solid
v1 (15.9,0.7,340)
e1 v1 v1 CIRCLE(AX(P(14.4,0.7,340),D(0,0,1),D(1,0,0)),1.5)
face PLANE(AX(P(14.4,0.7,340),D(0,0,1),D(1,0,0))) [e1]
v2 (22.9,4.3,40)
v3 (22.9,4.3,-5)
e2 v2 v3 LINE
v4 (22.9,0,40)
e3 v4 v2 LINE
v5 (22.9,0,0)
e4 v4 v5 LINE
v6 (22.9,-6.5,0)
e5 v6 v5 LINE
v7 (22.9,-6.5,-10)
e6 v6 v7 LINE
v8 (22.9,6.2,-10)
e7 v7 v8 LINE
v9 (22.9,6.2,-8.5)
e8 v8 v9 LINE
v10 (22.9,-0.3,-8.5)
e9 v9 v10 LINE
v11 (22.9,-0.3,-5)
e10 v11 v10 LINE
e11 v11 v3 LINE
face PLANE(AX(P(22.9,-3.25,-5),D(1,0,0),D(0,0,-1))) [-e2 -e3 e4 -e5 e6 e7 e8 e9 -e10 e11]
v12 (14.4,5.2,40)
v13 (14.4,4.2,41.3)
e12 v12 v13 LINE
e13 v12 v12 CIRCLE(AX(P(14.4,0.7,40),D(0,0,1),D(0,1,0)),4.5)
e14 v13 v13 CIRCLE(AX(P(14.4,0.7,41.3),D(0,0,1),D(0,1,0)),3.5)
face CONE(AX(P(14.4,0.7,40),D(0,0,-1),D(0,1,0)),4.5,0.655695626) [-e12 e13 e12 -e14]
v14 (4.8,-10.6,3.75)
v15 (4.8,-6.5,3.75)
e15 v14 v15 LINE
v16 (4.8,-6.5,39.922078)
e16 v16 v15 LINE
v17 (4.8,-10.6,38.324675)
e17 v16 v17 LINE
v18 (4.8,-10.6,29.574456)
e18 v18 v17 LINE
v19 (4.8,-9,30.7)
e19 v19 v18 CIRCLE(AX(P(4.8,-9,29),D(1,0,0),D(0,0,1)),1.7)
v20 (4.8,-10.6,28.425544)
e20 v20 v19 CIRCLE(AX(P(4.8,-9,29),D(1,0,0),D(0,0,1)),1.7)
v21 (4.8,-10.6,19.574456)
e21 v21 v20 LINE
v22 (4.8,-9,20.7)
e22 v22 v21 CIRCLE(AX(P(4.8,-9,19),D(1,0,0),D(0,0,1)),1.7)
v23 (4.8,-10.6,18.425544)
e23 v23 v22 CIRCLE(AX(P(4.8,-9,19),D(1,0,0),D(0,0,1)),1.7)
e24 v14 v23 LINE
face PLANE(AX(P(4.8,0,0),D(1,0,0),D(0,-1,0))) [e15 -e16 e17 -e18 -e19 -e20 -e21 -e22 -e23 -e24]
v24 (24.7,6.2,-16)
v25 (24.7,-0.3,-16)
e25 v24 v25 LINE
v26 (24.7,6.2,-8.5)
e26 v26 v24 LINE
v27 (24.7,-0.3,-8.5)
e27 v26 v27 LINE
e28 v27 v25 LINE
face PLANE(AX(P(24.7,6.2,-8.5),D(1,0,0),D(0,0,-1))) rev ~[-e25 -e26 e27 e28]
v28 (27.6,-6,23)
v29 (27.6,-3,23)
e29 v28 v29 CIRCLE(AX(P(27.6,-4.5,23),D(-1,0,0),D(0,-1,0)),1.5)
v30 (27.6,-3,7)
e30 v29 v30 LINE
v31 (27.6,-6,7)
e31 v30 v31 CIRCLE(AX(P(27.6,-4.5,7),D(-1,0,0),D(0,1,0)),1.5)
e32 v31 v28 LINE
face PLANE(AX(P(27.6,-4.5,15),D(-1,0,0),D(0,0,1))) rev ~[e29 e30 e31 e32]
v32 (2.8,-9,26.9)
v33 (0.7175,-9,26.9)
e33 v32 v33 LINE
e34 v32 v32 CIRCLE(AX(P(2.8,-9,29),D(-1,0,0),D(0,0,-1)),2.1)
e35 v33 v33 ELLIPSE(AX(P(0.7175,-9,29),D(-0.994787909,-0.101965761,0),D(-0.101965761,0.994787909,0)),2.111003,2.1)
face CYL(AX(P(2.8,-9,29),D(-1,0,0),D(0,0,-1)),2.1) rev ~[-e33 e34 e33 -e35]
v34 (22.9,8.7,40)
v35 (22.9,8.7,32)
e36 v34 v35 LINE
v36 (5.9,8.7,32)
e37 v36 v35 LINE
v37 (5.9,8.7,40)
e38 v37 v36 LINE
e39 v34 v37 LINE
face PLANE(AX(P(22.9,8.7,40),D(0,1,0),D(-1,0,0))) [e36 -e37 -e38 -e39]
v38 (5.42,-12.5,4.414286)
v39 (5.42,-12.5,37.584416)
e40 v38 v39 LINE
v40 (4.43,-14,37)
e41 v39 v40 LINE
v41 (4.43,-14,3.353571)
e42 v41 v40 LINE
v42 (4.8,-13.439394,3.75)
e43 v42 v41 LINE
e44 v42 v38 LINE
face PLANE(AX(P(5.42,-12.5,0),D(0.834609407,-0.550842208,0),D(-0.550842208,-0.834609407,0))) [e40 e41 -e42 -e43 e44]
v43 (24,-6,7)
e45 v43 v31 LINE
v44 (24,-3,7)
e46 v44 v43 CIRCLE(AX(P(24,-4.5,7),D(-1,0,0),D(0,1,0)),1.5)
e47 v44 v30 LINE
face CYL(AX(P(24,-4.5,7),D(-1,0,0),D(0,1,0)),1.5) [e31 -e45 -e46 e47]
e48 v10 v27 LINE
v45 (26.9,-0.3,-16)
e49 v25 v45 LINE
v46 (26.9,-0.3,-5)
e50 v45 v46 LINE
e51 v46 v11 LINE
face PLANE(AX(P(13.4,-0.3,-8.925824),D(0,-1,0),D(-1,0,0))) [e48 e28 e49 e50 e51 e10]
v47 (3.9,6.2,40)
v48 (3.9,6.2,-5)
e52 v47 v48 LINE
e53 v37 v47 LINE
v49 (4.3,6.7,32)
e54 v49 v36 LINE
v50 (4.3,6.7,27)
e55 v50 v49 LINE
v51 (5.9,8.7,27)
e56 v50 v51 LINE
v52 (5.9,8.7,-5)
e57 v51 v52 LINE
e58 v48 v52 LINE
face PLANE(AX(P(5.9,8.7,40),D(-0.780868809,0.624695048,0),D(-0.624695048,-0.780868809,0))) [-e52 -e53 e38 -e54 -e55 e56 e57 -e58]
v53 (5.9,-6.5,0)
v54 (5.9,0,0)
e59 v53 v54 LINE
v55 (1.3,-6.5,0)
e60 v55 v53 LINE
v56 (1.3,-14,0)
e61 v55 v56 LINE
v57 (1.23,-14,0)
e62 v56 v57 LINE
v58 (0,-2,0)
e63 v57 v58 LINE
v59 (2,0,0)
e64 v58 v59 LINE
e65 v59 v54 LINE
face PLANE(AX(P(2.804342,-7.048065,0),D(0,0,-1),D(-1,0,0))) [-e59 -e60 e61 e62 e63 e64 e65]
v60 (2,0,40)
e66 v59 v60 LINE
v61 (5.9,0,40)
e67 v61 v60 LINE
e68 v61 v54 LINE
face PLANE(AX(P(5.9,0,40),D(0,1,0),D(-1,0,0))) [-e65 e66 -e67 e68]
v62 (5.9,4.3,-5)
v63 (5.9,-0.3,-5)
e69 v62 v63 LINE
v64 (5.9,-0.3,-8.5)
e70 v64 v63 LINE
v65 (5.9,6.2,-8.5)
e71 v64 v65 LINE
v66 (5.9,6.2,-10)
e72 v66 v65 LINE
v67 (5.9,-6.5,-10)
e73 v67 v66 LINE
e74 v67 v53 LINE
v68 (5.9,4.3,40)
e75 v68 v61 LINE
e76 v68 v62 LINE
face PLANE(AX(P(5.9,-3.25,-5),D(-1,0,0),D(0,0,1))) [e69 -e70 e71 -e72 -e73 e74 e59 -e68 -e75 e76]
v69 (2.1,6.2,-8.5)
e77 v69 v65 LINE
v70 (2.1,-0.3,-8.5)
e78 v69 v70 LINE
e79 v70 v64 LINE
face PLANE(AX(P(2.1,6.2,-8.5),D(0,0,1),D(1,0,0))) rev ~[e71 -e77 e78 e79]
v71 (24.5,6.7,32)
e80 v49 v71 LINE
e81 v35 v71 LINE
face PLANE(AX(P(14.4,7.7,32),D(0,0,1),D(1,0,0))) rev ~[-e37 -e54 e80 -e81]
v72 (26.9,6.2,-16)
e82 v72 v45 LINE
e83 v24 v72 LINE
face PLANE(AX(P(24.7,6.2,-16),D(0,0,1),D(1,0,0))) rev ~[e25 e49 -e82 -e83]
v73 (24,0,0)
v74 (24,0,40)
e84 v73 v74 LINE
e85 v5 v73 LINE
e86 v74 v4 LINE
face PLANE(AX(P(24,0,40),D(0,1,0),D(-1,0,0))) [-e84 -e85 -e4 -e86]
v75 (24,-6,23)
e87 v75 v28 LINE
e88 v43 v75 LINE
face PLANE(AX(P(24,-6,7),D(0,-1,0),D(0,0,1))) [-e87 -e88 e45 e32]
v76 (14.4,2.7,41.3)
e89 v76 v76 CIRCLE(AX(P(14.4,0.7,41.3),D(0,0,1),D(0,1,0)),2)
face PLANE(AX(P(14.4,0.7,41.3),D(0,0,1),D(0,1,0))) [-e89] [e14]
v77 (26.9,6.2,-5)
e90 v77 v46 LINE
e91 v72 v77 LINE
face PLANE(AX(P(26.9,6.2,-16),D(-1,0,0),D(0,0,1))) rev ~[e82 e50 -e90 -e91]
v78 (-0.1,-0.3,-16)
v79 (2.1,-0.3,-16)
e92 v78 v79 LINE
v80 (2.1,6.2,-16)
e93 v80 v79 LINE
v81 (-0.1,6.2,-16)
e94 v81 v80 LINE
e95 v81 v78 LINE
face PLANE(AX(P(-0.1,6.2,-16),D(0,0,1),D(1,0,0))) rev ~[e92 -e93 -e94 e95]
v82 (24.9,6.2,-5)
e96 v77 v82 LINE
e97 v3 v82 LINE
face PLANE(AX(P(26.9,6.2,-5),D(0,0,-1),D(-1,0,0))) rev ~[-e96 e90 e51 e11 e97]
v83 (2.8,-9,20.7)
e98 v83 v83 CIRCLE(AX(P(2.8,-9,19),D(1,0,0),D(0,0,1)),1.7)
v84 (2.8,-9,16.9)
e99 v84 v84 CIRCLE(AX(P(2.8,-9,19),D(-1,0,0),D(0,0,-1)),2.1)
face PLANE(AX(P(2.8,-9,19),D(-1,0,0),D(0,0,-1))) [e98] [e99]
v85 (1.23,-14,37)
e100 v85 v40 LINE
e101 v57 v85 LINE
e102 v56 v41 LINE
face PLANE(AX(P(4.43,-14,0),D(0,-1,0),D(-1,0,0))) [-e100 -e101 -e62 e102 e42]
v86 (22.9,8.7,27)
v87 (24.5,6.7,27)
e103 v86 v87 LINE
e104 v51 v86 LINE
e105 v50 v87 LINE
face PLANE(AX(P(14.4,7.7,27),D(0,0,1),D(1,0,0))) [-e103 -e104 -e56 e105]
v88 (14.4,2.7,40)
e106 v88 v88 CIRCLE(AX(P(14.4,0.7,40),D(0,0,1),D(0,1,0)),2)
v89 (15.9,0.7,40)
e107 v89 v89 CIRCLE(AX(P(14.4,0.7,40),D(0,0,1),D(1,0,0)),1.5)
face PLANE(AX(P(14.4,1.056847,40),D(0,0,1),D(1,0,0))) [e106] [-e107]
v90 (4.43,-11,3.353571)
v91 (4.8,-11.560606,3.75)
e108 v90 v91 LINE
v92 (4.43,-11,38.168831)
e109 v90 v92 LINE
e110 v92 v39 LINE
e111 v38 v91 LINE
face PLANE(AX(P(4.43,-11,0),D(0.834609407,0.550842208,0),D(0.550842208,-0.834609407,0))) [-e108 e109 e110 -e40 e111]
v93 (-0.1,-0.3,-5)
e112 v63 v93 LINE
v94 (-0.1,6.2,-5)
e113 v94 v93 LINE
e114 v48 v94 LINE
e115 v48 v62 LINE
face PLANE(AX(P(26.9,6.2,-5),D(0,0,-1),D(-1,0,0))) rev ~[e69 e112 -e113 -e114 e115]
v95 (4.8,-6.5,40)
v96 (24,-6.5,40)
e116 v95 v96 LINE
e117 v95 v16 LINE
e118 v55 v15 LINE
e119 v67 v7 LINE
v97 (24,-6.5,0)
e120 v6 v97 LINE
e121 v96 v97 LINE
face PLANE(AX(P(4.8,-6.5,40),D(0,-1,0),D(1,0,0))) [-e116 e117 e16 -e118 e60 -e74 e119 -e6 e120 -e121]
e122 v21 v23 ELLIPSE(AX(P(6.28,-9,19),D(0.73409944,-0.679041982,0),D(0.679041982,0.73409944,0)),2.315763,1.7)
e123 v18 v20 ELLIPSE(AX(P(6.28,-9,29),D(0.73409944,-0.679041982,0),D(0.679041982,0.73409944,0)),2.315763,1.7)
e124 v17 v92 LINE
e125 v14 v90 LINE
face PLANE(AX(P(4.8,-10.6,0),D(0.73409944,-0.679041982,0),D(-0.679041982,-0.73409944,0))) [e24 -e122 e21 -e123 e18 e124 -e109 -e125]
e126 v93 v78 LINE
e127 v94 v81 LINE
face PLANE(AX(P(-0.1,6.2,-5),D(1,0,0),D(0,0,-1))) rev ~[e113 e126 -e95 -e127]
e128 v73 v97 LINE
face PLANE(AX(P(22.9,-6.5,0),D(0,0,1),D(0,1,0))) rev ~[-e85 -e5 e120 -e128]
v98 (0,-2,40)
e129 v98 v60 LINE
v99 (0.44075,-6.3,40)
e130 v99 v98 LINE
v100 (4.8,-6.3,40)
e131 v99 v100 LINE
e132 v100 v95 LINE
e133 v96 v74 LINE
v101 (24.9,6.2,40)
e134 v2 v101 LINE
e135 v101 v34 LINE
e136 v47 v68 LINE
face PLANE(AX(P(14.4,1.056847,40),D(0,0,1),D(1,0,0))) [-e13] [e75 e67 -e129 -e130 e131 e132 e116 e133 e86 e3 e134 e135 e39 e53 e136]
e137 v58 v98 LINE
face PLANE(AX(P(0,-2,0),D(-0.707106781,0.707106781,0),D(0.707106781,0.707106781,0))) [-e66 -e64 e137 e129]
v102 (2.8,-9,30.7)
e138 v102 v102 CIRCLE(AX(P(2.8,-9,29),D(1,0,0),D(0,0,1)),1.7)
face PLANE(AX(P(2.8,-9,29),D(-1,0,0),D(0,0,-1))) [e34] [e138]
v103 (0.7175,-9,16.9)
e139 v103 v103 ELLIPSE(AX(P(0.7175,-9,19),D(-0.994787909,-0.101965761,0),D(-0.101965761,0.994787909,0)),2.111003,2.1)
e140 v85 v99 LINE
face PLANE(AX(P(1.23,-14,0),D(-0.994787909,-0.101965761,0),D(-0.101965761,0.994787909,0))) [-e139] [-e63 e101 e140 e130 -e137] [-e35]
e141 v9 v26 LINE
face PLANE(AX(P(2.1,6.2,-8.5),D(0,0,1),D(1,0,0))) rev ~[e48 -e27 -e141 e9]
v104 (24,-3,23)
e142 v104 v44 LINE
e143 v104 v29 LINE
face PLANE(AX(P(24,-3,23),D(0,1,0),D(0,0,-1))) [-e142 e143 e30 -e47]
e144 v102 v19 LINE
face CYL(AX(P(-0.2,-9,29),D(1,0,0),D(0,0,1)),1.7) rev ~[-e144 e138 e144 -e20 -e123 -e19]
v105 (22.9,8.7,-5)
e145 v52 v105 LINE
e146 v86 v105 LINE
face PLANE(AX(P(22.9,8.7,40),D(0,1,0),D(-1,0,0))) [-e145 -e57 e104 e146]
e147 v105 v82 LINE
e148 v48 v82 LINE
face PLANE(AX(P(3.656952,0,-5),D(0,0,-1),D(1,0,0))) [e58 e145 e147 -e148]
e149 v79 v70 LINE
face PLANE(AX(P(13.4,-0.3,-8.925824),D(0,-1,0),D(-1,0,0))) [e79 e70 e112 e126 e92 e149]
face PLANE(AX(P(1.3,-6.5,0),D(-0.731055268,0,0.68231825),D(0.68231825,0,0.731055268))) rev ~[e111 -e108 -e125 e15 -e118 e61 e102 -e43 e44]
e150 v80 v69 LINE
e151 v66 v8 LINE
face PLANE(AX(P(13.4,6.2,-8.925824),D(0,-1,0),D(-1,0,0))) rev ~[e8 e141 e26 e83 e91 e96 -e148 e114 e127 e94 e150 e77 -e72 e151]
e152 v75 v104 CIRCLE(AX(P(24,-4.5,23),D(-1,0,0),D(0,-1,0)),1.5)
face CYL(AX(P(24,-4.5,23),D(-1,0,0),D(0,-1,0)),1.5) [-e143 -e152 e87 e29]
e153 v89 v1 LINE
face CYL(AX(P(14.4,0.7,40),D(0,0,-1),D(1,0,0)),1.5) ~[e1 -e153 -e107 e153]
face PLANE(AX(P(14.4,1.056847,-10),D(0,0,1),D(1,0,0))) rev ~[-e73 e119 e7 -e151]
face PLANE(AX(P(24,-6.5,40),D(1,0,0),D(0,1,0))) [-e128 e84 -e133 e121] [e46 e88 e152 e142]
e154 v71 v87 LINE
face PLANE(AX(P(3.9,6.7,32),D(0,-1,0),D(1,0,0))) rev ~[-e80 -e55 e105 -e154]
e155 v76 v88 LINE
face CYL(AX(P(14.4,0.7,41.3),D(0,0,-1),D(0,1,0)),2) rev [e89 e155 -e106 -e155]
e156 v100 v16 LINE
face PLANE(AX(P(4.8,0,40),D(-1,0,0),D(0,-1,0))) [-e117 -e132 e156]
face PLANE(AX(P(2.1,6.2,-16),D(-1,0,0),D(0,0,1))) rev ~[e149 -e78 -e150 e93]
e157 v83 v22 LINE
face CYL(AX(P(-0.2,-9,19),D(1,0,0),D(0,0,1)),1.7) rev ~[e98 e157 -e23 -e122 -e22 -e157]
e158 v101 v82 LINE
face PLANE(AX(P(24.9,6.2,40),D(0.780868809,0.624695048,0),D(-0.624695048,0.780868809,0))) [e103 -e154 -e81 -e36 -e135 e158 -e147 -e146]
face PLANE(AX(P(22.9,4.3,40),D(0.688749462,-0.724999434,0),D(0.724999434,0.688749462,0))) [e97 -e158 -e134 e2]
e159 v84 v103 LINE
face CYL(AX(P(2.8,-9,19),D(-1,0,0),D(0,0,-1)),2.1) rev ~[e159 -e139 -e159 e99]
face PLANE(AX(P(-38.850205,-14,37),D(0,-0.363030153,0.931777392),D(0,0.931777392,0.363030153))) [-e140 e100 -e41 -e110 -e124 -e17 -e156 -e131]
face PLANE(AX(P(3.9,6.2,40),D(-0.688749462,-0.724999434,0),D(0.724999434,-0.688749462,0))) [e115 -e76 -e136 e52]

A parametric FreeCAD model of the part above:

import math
import FreeCAD as App
import Part
import Sketcher
Q = App.Units.Quantity

doc = App.newDocument("Part")
params = doc.addObject("Spreadsheet::Sheet", "Params")
for row, (alias, value) in enumerate([
    ("sketch1_width", "3.2 mm"),
    ("sketch1_width2", "2.8 mm"),
    ("sketch1_height", "10.6 mm"),
    ("pad1_length", "40 mm"),
    ("sketch2_height", "3 mm"),
    ("sketch2_width", "7.7 mm"),
    ("sketch3_height", "3.75 mm"),
    ("pocket2_length", "40 mm"),
    ("sketch4_diameter", "3.4 mm"),
    ("hole_diameter", "3.4 mm"),
    ("hole_cbore_diameter", "4.2 mm"),
    ("hole_cbore_depth", "3 mm"),
    ("pocket3_length", "10 mm"),
    ("sketch6_width", "17 mm"),
    ("sketch6_width2", "19.2 mm"),
    ("sketch6_height", "6.5 mm"),
    ("sketch6_height2", "4.3 mm"),
    ("pad2_length", "50 mm"),
    ("sketch7_width", "1.5 mm"),
    ("sketch7_width2", "2.5 mm"),
    ("sketch7_height", "1.3 mm"),
    ("revolution_angle", "360 deg"),
    ("sketch8_height", "5 mm"),
    ("sketch8_width", "2.5 mm"),
    ("sketch9_width", "2 mm"),
    ("sketch9_height", "5 mm"),
    ("pocket5_length", "10 mm"),
    ("sketch10_height", "10 mm"),
    ("sketch10_width", "6.5 mm"),
    ("pocket6_length", "6.5 mm"),
    ("sketch11_height", "10 mm"),
    ("sketch11_width", "6.5 mm"),
    ("pocket7_length", "6.5 mm"),
    ("sketch12_width", "27 mm"),
    ("sketch12_height", "11 mm"),
    ("sketch12_width2", "2.2 mm"),
    ("sketch12_height2", "7.5 mm"),
    ("pad3_length", "6.5 mm"),
    ("sketch13_width", "21 mm"),
    ("sketch13_height", "2 mm"),
    ("pocket8_length", "5 mm"),
    ("sketch14_radius", "1.5 mm"),
    ("sketch14_height", "16 mm"),
    ("pad4_length", "3.6 mm"),
    ("sketch15_diameter", "3 mm"),
    ("pad5_length", "300 mm"),
], start=1):
    params.set(f"A{row}", alias)
    params.set(f"B{row}", "=" + value)
    params.setAlias(f"B{row}", alias)

body = doc.addObject("PartDesign::Body", "Body")

# Sketch on XY plane
sketch1 = doc.addObject("Sketcher::SketchObject", "Sketch")
body.addObject(sketch1)
sketch1.AttachmentSupport = (doc.XY_Plane, [""])
sketch1.MapMode = "FlatFace"
sketch1.addGeometry([
    Part.LineSegment(App.Vector(2, 0, 0), App.Vector(0, -2, 0)),  # 0
    Part.LineSegment(App.Vector(0, -2, 0), App.Vector(1.2, -14, 0)),  # 1
    Part.LineSegment(App.Vector(1.2, -14, 0), App.Vector(4.4, -14, 0)),  # 2
    Part.LineSegment(App.Vector(4.4, -14, 0), App.Vector(5.4, -12.5, 0)),  # 3
    Part.LineSegment(App.Vector(5.4, -12.5, 0), App.Vector(4.4, -11, 0)),  # 4
    Part.LineSegment(App.Vector(4.4, -11, 0), App.Vector(4.8, -10.6, 0)),  # 5
    Part.LineSegment(App.Vector(4.8, -10.6, 0), App.Vector(4.8, 0, 0)),  # 6
    Part.LineSegment(App.Vector(4.8, 0, 0), App.Vector(2, 0, 0)),  # 7
], False)
sketch1.addConstraint([
    Sketcher.Constraint("Coincident", 0, 2, 1, 1),
    Sketcher.Constraint("Coincident", 1, 2, 2, 1),
    Sketcher.Constraint("Coincident", 2, 2, 3, 1),
    Sketcher.Constraint("Coincident", 3, 2, 4, 1),
    Sketcher.Constraint("Coincident", 4, 2, 5, 1),
    Sketcher.Constraint("Coincident", 5, 2, 6, 1),
    Sketcher.Constraint("Coincident", 6, 2, 7, 1),
    Sketcher.Constraint("Coincident", 7, 2, 0, 1),
    Sketcher.Constraint("Horizontal", 2),
    Sketcher.Constraint("Vertical", 6),
    Sketcher.Constraint("Horizontal", 7),
    Sketcher.Constraint("PointOnObject", 0, 2, -2),
    Sketcher.Constraint("PointOnObject", 6, 2, -1),
    Sketcher.Constraint("Vertical", 2, 2, 4, 2),
    Sketcher.Constraint("Equal", 3, 4),
    Sketcher.Constraint("Angle", 0, Q("-135 deg")),
    Sketcher.Constraint("DistanceX", 2, 1, 2, 2, Q("3.2 mm")),
    Sketcher.Constraint("DistanceX", 7, 2, 7, 1, Q("2.8 mm")),
    Sketcher.Constraint("DistanceY", 6, 1, 6, 2, Q("10.6 mm")),
    Sketcher.Constraint("DistanceY", 0, 2, -1, 1, Q("2 mm")),
    Sketcher.Constraint("DistanceY", 1, 2, -1, 1, Q("14 mm")),
    Sketcher.Constraint("DistanceY", 4, 2, -1, 1, Q("11 mm")),
    Sketcher.Constraint("DistanceX", -1, 1, 1, 2, Q("1.23 mm")),
    Sketcher.Constraint("DistanceX", -1, 1, 3, 2, Q("5.42 mm")),
])
sketch1.setExpression("Constraints[16]", "Params.sketch1_width")
sketch1.setExpression("Constraints[17]", "Params.sketch1_width2")
sketch1.setExpression("Constraints[18]", "Params.sketch1_height")
pad1 = doc.addObject("PartDesign::Pad", "Pad")
body.addObject(pad1)
pad1.Profile = sketch1
pad1.setExpression("Length", "Params.pad1_length")

# Sketch on YZ plane
sketch2 = doc.addObject("Sketcher::SketchObject", "Sketch001")
body.addObject(sketch2)
sketch2.AttachmentSupport = (doc.YZ_Plane, [""])
sketch2.MapMode = "FlatFace"
sketch2.AttachmentOffset = App.Placement(App.Vector(0, 0, 4.8), App.Rotation())
sketch2.addGeometry([
    Part.LineSegment(App.Vector(-14, 37, 0), App.Vector(-6.3, 40, 0)),
    Part.LineSegment(App.Vector(-6.3, 40, 0), App.Vector(-14, 40, 0)),
    Part.LineSegment(App.Vector(-14, 40, 0), App.Vector(-14, 37, 0)),
], False)
sketch2.addConstraint([
    Sketcher.Constraint("Coincident", 0, 2, 1, 1),
    Sketcher.Constraint("Coincident", 1, 2, 2, 1),
    Sketcher.Constraint("Coincident", 2, 2, 0, 1),
    Sketcher.Constraint("Horizontal", 1),
    Sketcher.Constraint("Vertical", 2),
    Sketcher.Constraint("DistanceY", 2, 2, 2, 1, Q("3 mm")),
    Sketcher.Constraint("DistanceX", 1, 2, 1, 1, Q("7.7 mm")),
    Sketcher.Constraint("DistanceY", -1, 1, 0, 2, Q("40 mm")),
    Sketcher.Constraint("DistanceX", 1, 2, -1, 1, Q("14 mm")),
])
sketch2.setExpression("Constraints[5]", "Params.sketch2_height")
sketch2.setExpression("Constraints[6]", "Params.sketch2_width")
pocket1 = doc.addObject("PartDesign::Pocket", "Pocket")
body.addObject(pocket1)
pocket1.Profile = sketch2
pocket1.Type = "ThroughAll"
pocket1.Midplane = True

# Sketch on XZ plane
sketch3 = doc.addObject("Sketcher::SketchObject", "Sketch002")
body.addObject(sketch3)
sketch3.AttachmentSupport = (doc.XZ_Plane, [""])
sketch3.MapMode = "FlatFace"
sketch3.AttachmentOffset = App.Placement(App.Vector(0, 0, 6.5), App.Rotation())
sketch3.addGeometry([
    Part.LineSegment(App.Vector(5.7, 0, 0), App.Vector(1.3, 0, 0)),
    Part.LineSegment(App.Vector(1.3, 0, 0), App.Vector(4.8, 3.8, 0)),
    Part.LineSegment(App.Vector(4.8, 3.8, 0), App.Vector(5.7, 3.8, 0)),
    Part.LineSegment(App.Vector(5.7, 3.8, 0), App.Vector(5.7, 0, 0)),
], False)
sketch3.addConstraint([
    Sketcher.Constraint("Coincident", 0, 2, 1, 1),
    Sketcher.Constraint("Coincident", 1, 2, 2, 1),
    Sketcher.Constraint("Coincident", 2, 2, 3, 1),
    Sketcher.Constraint("Coincident", 3, 2, 0, 1),
    Sketcher.Constraint("Horizontal", 0),
    Sketcher.Constraint("Horizontal", 2),
    Sketcher.Constraint("Vertical", 3),
    Sketcher.Constraint("PointOnObject", 0, 2, -1),
    Sketcher.Constraint("DistanceY", 3, 2, 3, 1, Q("3.75 mm")),
    Sketcher.Constraint("DistanceX", -1, 1, 0, 2, Q("1.3 mm")),
    Sketcher.Constraint("DistanceX", -1, 1, 1, 2, Q("4.8 mm")),
    Sketcher.Constraint("DistanceX", 0, 2, 0, 1, Q("4.406793 mm")),
])
sketch3.setExpression("Constraints[8]", "Params.sketch3_height")
pocket2 = doc.addObject("PartDesign::Pocket", "Pocket001")
body.addObject(pocket2)
pocket2.Profile = sketch3
pocket2.setExpression("Length", "Params.pocket2_length")
pocket2.Reversed = True

# Sketch on YZ plane
sketch4 = doc.addObject("Sketcher::SketchObject", "Sketch003")
body.addObject(sketch4)
sketch4.AttachmentSupport = (doc.YZ_Plane, [""])
sketch4.MapMode = "FlatFace"
sketch4.AttachmentOffset = App.Placement(App.Vector(0, 0, -0.2), App.Rotation())
sketch4.addGeometry([
    Part.Circle(App.Vector(-9, 19, 0), App.Vector(0, 0, 1), 1.7),
    Part.Circle(App.Vector(-9, 29, 0), App.Vector(0, 0, 1), 1.7),
], False)
sketch4.addConstraint([
    Sketcher.Constraint("Equal", 0, 1),
    Sketcher.Constraint("Vertical", 0, 3, 1, 3),
    Sketcher.Constraint("Diameter", 0, Q("3.4 mm")),
    Sketcher.Constraint("DistanceX", 0, 3, -1, 1, Q("9 mm")),
    Sketcher.Constraint("DistanceY", -1, 1, 0, 3, Q("19 mm")),
    Sketcher.Constraint("DistanceY", -1, 1, 1, 3, Q("29 mm")),
])
sketch4.setExpression("Constraints[2]", "Params.sketch4_diameter")
doc.recompute()
hole = doc.addObject("PartDesign::Hole", "Hole")
body.addObject(hole)
hole.Profile = sketch4
hole.ThreadType = "None"
hole.setExpression("Diameter", "Params.hole_diameter")
hole.DepthType = "ThroughAll"
hole.HoleCutType = "Counterbore"
hole.setExpression("HoleCutDiameter", "Params.hole_cbore_diameter")
hole.setExpression("HoleCutDepth", "Params.hole_cbore_depth")
hole.Reversed = True

# Sketch on an angled plane
sketch5 = doc.addObject("Sketcher::SketchObject", "Sketch004")
body.addObject(sketch5)
sketch5.Placement = App.Placement(App.Vector(0.694774, 0, -0.648456), App.Rotation(App.Vector(-0.68231825, 0, -0.731055268), App.Vector(0, 0.999999999, 0), App.Vector(0.731055268, 0, -0.68231825), "ZXY"))
sketch5.addGeometry([
    Part.LineSegment(App.Vector(-10, -8, 0), App.Vector(-10, -15, 0)),
    Part.LineSegment(App.Vector(-10, -15, 0), App.Vector(-3, -15, 0)),
    Part.LineSegment(App.Vector(-3, -15, 0), App.Vector(-3, -8, 0)),
    Part.LineSegment(App.Vector(-3, -8, 0), App.Vector(-10, -8, 0)),
], False)
sketch5.addConstraint([
    Sketcher.Constraint("Coincident", 0, 2, 1, 1),
    Sketcher.Constraint("Coincident", 1, 2, 2, 1),
    Sketcher.Constraint("Coincident", 2, 2, 3, 1),
    Sketcher.Constraint("Coincident", 3, 2, 0, 1),
    Sketcher.Constraint("Vertical", 0),
    Sketcher.Constraint("Horizontal", 1),
    Sketcher.Constraint("Vertical", 2),
    Sketcher.Constraint("Horizontal", 3),
    Sketcher.Constraint("DistanceX", 1, 1, 1, 2, Q("7.050171 mm")),
    Sketcher.Constraint("DistanceY", 0, 2, 0, 1, Q("7.359113 mm")),
    Sketcher.Constraint("DistanceX", 0, 2, -1, 1, Q("10.121337 mm")),
    Sketcher.Constraint("DistanceY", 0, 2, -1, 1, Q("15.309805 mm")),
])
pocket3 = doc.addObject("PartDesign::Pocket", "Pocket002")
body.addObject(pocket3)
pocket3.Profile = sketch5
pocket3.setExpression("Length", "Params.pocket3_length")
pocket3.Reversed = True

# Sketch on XY plane
sketch6 = doc.addObject("Sketcher::SketchObject", "Sketch005")
body.addObject(sketch6)
sketch6.AttachmentSupport = (doc.XY_Plane, [""])
sketch6.MapMode = "FlatFace"
sketch6.AttachmentOffset = App.Placement(App.Vector(0, 0, 40), App.Rotation())
sketch6.addGeometry([
    Part.LineSegment(App.Vector(4.8, -6.5, 0), App.Vector(24, -6.5, 0)),  # 0
    Part.LineSegment(App.Vector(24, -6.5, 0), App.Vector(24, 0, 0)),  # 1
    Part.LineSegment(App.Vector(24, 0, 0), App.Vector(22.9, 0, 0)),  # 2
    Part.LineSegment(App.Vector(22.9, 0, 0), App.Vector(22.9, 4.3, 0)),  # 3
    Part.LineSegment(App.Vector(22.9, 4.3, 0), App.Vector(24.9, 6.2, 0)),  # 4
    Part.LineSegment(App.Vector(24.9, 6.2, 0), App.Vector(22.9, 8.7, 0)),  # 5
    Part.LineSegment(App.Vector(22.9, 8.7, 0), App.Vector(5.9, 8.7, 0)),  # 6
    Part.LineSegment(App.Vector(5.9, 8.7, 0), App.Vector(3.9, 6.2, 0)),  # 7
    Part.LineSegment(App.Vector(3.9, 6.2, 0), App.Vector(5.9, 4.3, 0)),  # 8
    Part.LineSegment(App.Vector(5.9, 4.3, 0), App.Vector(5.9, 0, 0)),  # 9
    Part.LineSegment(App.Vector(5.9, 0, 0), App.Vector(4.8, 0, 0)),  # 10
    Part.LineSegment(App.Vector(4.8, 0, 0), App.Vector(4.8, -6.5, 0)),  # 11
], False)
sketch6.addConstraint([
    Sketcher.Constraint("Coincident", 0, 2, 1, 1),
    Sketcher.Constraint("Coincident", 1, 2, 2, 1),
    Sketcher.Constraint("Coincident", 2, 2, 3, 1),
    Sketcher.Constraint("Coincident", 3, 2, 4, 1),
    Sketcher.Constraint("Coincident", 4, 2, 5, 1),
    Sketcher.Constraint("Coincident", 5, 2, 6, 1),
    Sketcher.Constraint("Coincident", 6, 2, 7, 1),
    Sketcher.Constraint("Coincident", 7, 2, 8, 1),
    Sketcher.Constraint("Coincident", 8, 2, 9, 1),
    Sketcher.Constraint("Coincident", 9, 2, 10, 1),
    Sketcher.Constraint("Coincident", 10, 2, 11, 1),
    Sketcher.Constraint("Coincident", 11, 2, 0, 1),
    Sketcher.Constraint("Horizontal", 0),
    Sketcher.Constraint("Vertical", 1),
    Sketcher.Constraint("Horizontal", 2),
    Sketcher.Constraint("Vertical", 3),
    Sketcher.Constraint("Horizontal", 6),
    Sketcher.Constraint("Vertical", 9),
    Sketcher.Constraint("Horizontal", 10),
    Sketcher.Constraint("Vertical", 11),
    Sketcher.Constraint("PointOnObject", 1, 2, -1),
    Sketcher.Constraint("PointOnObject", 9, 2, -1),
    Sketcher.Constraint("Horizontal", 4, 2, 7, 2),
    Sketcher.Constraint("Horizontal", 3, 2, 8, 2),
    Sketcher.Constraint("Vertical", 3, 2, 5, 2),
    Sketcher.Constraint("Vertical", 6, 2, 8, 2),
    Sketcher.Constraint("Equal", 2, 10),
    Sketcher.Constraint("Equal", 5, 7),
    Sketcher.Constraint("DistanceX", 6, 2, 6, 1, Q("17 mm")),
    Sketcher.Constraint("DistanceX", 0, 1, 0, 2, Q("19.2 mm")),
    Sketcher.Constraint("DistanceY", 1, 1, 1, 2, Q("6.5 mm")),
    Sketcher.Constraint("DistanceY", 3, 1, 3, 2, Q("4.3 mm")),
    Sketcher.Constraint("DistanceX", -1, 1, 0, 2, Q("24 mm")),
    Sketcher.Constraint("DistanceX", 3, 2, 4, 2, Q("2 mm")),
    Sketcher.Constraint("DistanceY", -1, 1, 4, 2, Q("6.2 mm")),
    Sketcher.Constraint("DistanceY", -1, 1, 5, 2, Q("8.7 mm")),
])
sketch6.setExpression("Constraints[28]", "Params.sketch6_width")
sketch6.setExpression("Constraints[29]", "Params.sketch6_width2")
sketch6.setExpression("Constraints[30]", "Params.sketch6_height")
sketch6.setExpression("Constraints[31]", "Params.sketch6_height2")
pad2 = doc.addObject("PartDesign::Pad", "Pad001")
body.addObject(pad2)
pad2.Profile = sketch6
pad2.setExpression("Length", "Params.pad2_length")
pad2.Reversed = True

# Sketch on YZ plane
sketch7 = doc.addObject("Sketcher::SketchObject", "Sketch006")
body.addObject(sketch7)
sketch7.AttachmentSupport = (doc.YZ_Plane, [""])
sketch7.MapMode = "FlatFace"
sketch7.AttachmentOffset = App.Placement(App.Vector(0, 0, 14.4), App.Rotation())
sketch7.addGeometry([
    Part.LineSegment(App.Vector(5.2, 40, 0), App.Vector(4.2, 41.3, 0)),
    Part.LineSegment(App.Vector(4.2, 41.3, 0), App.Vector(2.7, 41.3, 0)),
    Part.LineSegment(App.Vector(2.7, 41.3, 0), App.Vector(2.7, 40, 0)),
    Part.LineSegment(App.Vector(2.7, 40, 0), App.Vector(5.2, 40, 0)),
], False)
sketch7.addGeometry(Part.LineSegment(App.Vector(0.7, 40, 0), App.Vector(0.7, 41.3, 0)), True)  # axis
sketch7.addConstraint([
    Sketcher.Constraint("Coincident", 0, 2, 1, 1),
    Sketcher.Constraint("Coincident", 1, 2, 2, 1),
    Sketcher.Constraint("Coincident", 2, 2, 3, 1),
    Sketcher.Constraint("Coincident", 3, 2, 0, 1),
    Sketcher.Constraint("Horizontal", 1),
    Sketcher.Constraint("Vertical", 2),
    Sketcher.Constraint("Horizontal", 3),
    Sketcher.Constraint("Vertical", 4),
    Sketcher.Constraint("Horizontal", 3, 2, 4, 1),
    Sketcher.Constraint("Horizontal", 1, 2, 4, 2),
    Sketcher.Constraint("DistanceX", 1, 2, 1, 1, Q("1.5 mm")),
    Sketcher.Constraint("DistanceX", 3, 1, 3, 2, Q("2.5 mm")),
    Sketcher.Constraint("DistanceY", 2, 2, 2, 1, Q("1.3 mm")),
    Sketcher.Constraint("DistanceY", -1, 1, 2, 2, Q("40 mm")),
    Sketcher.Constraint("DistanceX", 4, 1, 2, 2, Q("2 mm")),
    Sketcher.Constraint("DistanceX", -1, 1, 0, 2, Q("4.2 mm")),
])
sketch7.setExpression("Constraints[10]", "Params.sketch7_width")
sketch7.setExpression("Constraints[11]", "Params.sketch7_width2")
sketch7.setExpression("Constraints[12]", "Params.sketch7_height")
revolution = doc.addObject("PartDesign::Revolution", "Revolution")
body.addObject(revolution)
revolution.Profile = sketch7
revolution.ReferenceAxis = (sketch7, ["Axis0"])
revolution.setExpression("Angle", "Params.revolution_angle")

# Sketch on YZ plane
sketch8 = doc.addObject("Sketcher::SketchObject", "Sketch007")
body.addObject(sketch8)
sketch8.AttachmentSupport = (doc.YZ_Plane, [""])
sketch8.MapMode = "FlatFace"
sketch8.addGeometry([
    Part.LineSegment(App.Vector(8.7, -5, 0), App.Vector(6.2, -5, 0)),
    Part.LineSegment(App.Vector(6.2, -5, 0), App.Vector(6.2, -10, 0)),
    Part.LineSegment(App.Vector(6.2, -10, 0), App.Vector(8.7, -10, 0)),
    Part.LineSegment(App.Vector(8.7, -10, 0), App.Vector(8.7, -5, 0)),
], False)
sketch8.addConstraint([
    Sketcher.Constraint("Coincident", 0, 2, 1, 1),
    Sketcher.Constraint("Coincident", 1, 2, 2, 1),
    Sketcher.Constraint("Coincident", 2, 2, 3, 1),
    Sketcher.Constraint("Coincident", 3, 2, 0, 1),
    Sketcher.Constraint("Horizontal", 0),
    Sketcher.Constraint("Vertical", 1),
    Sketcher.Constraint("Horizontal", 2),
    Sketcher.Constraint("Vertical", 3),
    Sketcher.Constraint("DistanceY", 1, 2, 1, 1, Q("5 mm")),
    Sketcher.Constraint("DistanceX", 0, 2, 0, 1, Q("2.5 mm")),
    Sketcher.Constraint("DistanceY", 0, 2, -1, 1, Q("5 mm")),
    Sketcher.Constraint("DistanceX", -1, 1, 0, 2, Q("6.2 mm")),
])
sketch8.setExpression("Constraints[8]", "Params.sketch8_height")
sketch8.setExpression("Constraints[9]", "Params.sketch8_width")
pocket4 = doc.addObject("PartDesign::Pocket", "Pocket003")
body.addObject(pocket4)
pocket4.Profile = sketch8
pocket4.Type = "ThroughAll"
pocket4.Reversed = True

# Sketch on XZ plane
sketch9 = doc.addObject("Sketcher::SketchObject", "Sketch008")
body.addObject(sketch9)
sketch9.AttachmentSupport = (doc.XZ_Plane, [""])
sketch9.MapMode = "FlatFace"
sketch9.addGeometry([
    Part.LineSegment(App.Vector(22.9, -10, 0), App.Vector(22.9, -5, 0)),  # 0
    Part.LineSegment(App.Vector(22.9, -5, 0), App.Vector(24.9, -5, 0)),  # 1
    Part.LineSegment(App.Vector(24.9, -5, 0), App.Vector(24.9, -10, 0)),  # 2
    Part.LineSegment(App.Vector(24.9, -10, 0), App.Vector(22.9, -10, 0)),  # 3
    Part.LineSegment(App.Vector(3.7, -10, 0), App.Vector(3.7, -5, 0)),  # 4
    Part.LineSegment(App.Vector(3.7, -5, 0), App.Vector(5.9, -5, 0)),  # 5
    Part.LineSegment(App.Vector(5.9, -5, 0), App.Vector(5.9, -10, 0)),  # 6
    Part.LineSegment(App.Vector(5.9, -10, 0), App.Vector(3.7, -10, 0)),  # 7
], False)
sketch9.addConstraint([
    Sketcher.Constraint("Coincident", 0, 2, 1, 1),
    Sketcher.Constraint("Coincident", 1, 2, 2, 1),
    Sketcher.Constraint("Coincident", 2, 2, 3, 1),
    Sketcher.Constraint("Coincident", 3, 2, 0, 1),
    Sketcher.Constraint("Coincident", 4, 2, 5, 1),
    Sketcher.Constraint("Coincident", 5, 2, 6, 1),
    Sketcher.Constraint("Coincident", 6, 2, 7, 1),
    Sketcher.Constraint("Coincident", 7, 2, 4, 1),
    Sketcher.Constraint("Vertical", 0),
    Sketcher.Constraint("Horizontal", 1),
    Sketcher.Constraint("Vertical", 2),
    Sketcher.Constraint("Horizontal", 3),
    Sketcher.Constraint("Vertical", 4),
    Sketcher.Constraint("Horizontal", 5),
    Sketcher.Constraint("Vertical", 6),
    Sketcher.Constraint("Horizontal", 7),
    Sketcher.Constraint("Horizontal", 1, 2, 4, 2),
    Sketcher.Constraint("Horizontal", 3, 2, 6, 2),
    Sketcher.Constraint("DistanceX", 1, 1, 1, 2, Q("2 mm")),
    Sketcher.Constraint("DistanceY", 0, 1, 0, 2, Q("5 mm")),
    Sketcher.Constraint("DistanceY", 0, 2, -1, 1, Q("5 mm")),
    Sketcher.Constraint("DistanceX", 5, 2, 0, 2, Q("17 mm")),
    Sketcher.Constraint("DistanceX", -1, 1, 0, 2, Q("22.9 mm")),
    Sketcher.Constraint("DistanceX", 5, 1, 5, 2, Q("2.243048 mm")),
])
sketch9.setExpression("Constraints[18]", "Params.sketch9_width")
sketch9.setExpression("Constraints[19]", "Params.sketch9_height")
pocket5 = doc.addObject("PartDesign::Pocket", "Pocket004")
body.addObject(pocket5)
pocket5.Profile = sketch9
pocket5.setExpression("Length", "Params.pocket5_length")

# Sketch on YZ plane
sketch10 = doc.addObject("Sketcher::SketchObject", "Sketch009")
body.addObject(sketch10)
sketch10.AttachmentSupport = (doc.YZ_Plane, [""])
sketch10.MapMode = "FlatFace"
sketch10.AttachmentOffset = App.Placement(App.Vector(0, 0, 5.9), App.Rotation())
sketch10.addGeometry([
    Part.LineSegment(App.Vector(0, -10, 0), App.Vector(-6, -10, 0)),
    Part.LineSegment(App.Vector(-6, -10, 0), App.Vector(-6, 0, 0)),
    Part.LineSegment(App.Vector(-6, 0, 0), App.Vector(0, 0, 0)),
    Part.LineSegment(App.Vector(0, 0, 0), App.Vector(0, -10, 0)),
], False)
sketch10.addConstraint([
    Sketcher.Constraint("Coincident", 0, 2, 1, 1),
    Sketcher.Constraint("Coincident", 1, 2, 2, 1),
    Sketcher.Constraint("Coincident", 2, 2, 3, 1),
    Sketcher.Constraint("Coincident", 3, 2, 0, 1),
    Sketcher.Constraint("Horizontal", 0),
    Sketcher.Constraint("Vertical", 1),
    Sketcher.Constraint("Horizontal", 2),
    Sketcher.Constraint("Vertical", 3),
    Sketcher.Constraint("Coincident", 2, 2, -1, 1),
    Sketcher.Constraint("DistanceY", 1, 1, 1, 2, Q("10 mm")),
    Sketcher.Constraint("DistanceX", 0, 2, 0, 1, Q("6.5 mm")),
])
sketch10.setExpression("Constraints[9]", "Params.sketch10_height")
sketch10.setExpression("Constraints[10]", "Params.sketch10_width")
pocket6 = doc.addObject("PartDesign::Pocket", "Pocket005")
body.addObject(pocket6)
pocket6.Profile = sketch10
pocket6.setExpression("Length", "Params.pocket6_length")

# Sketch on YZ plane
sketch11 = doc.addObject("Sketcher::SketchObject", "Sketch010")
body.addObject(sketch11)
sketch11.AttachmentSupport = (doc.YZ_Plane, [""])
sketch11.MapMode = "FlatFace"
sketch11.AttachmentOffset = App.Placement(App.Vector(0, 0, 22.9), App.Rotation())
sketch11.addGeometry([
    Part.LineSegment(App.Vector(0, 0, 0), App.Vector(-6, 0, 0)),
    Part.LineSegment(App.Vector(-6, 0, 0), App.Vector(-6, -10, 0)),
    Part.LineSegment(App.Vector(-6, -10, 0), App.Vector(0, -10, 0)),
    Part.LineSegment(App.Vector(0, -10, 0), App.Vector(0, 0, 0)),
], False)
sketch11.addConstraint([
    Sketcher.Constraint("Coincident", 0, 2, 1, 1),
    Sketcher.Constraint("Coincident", 1, 2, 2, 1),
    Sketcher.Constraint("Coincident", 2, 2, 3, 1),
    Sketcher.Constraint("Coincident", 3, 2, 0, 1),
    Sketcher.Constraint("Horizontal", 0),
    Sketcher.Constraint("Vertical", 1),
    Sketcher.Constraint("Horizontal", 2),
    Sketcher.Constraint("Vertical", 3),
    Sketcher.Constraint("Coincident", 3, 2, -1, 1),
    Sketcher.Constraint("DistanceY", 1, 2, 1, 1, Q("10 mm")),
    Sketcher.Constraint("DistanceX", 0, 2, 0, 1, Q("6.5 mm")),
])
sketch11.setExpression("Constraints[9]", "Params.sketch11_height")
sketch11.setExpression("Constraints[10]", "Params.sketch11_width")
pocket7 = doc.addObject("PartDesign::Pocket", "Pocket006")
body.addObject(pocket7)
pocket7.Profile = sketch11
pocket7.setExpression("Length", "Params.pocket7_length")
pocket7.Reversed = True

# Sketch on XZ plane
sketch12 = doc.addObject("Sketcher::SketchObject", "Sketch011")
body.addObject(sketch12)
sketch12.AttachmentSupport = (doc.XZ_Plane, [""])
sketch12.MapMode = "FlatFace"
sketch12.AttachmentOffset = App.Placement(App.Vector(0, 0, -6.2), App.Rotation())
sketch12.addGeometry([
    Part.LineSegment(App.Vector(-0.1, -5, 0), App.Vector(26.9, -5, 0)),  # 0
    Part.LineSegment(App.Vector(26.9, -5, 0), App.Vector(26.9, -16, 0)),  # 1
    Part.LineSegment(App.Vector(26.9, -16, 0), App.Vector(24.7, -16, 0)),  # 2
    Part.LineSegment(App.Vector(24.7, -16, 0), App.Vector(24.7, -8.5, 0)),  # 3
    Part.LineSegment(App.Vector(24.7, -8.5, 0), App.Vector(2.1, -8.5, 0)),  # 4
    Part.LineSegment(App.Vector(2.1, -8.5, 0), App.Vector(2.1, -16, 0)),  # 5
    Part.LineSegment(App.Vector(2.1, -16, 0), App.Vector(-0.1, -16, 0)),  # 6
    Part.LineSegment(App.Vector(-0.1, -16, 0), App.Vector(-0.1, -5, 0)),  # 7
], False)
sketch12.addConstraint([
    Sketcher.Constraint("Coincident", 0, 2, 1, 1),
    Sketcher.Constraint("Coincident", 1, 2, 2, 1),
    Sketcher.Constraint("Coincident", 2, 2, 3, 1),
    Sketcher.Constraint("Coincident", 3, 2, 4, 1),
    Sketcher.Constraint("Coincident", 4, 2, 5, 1),
    Sketcher.Constraint("Coincident", 5, 2, 6, 1),
    Sketcher.Constraint("Coincident", 6, 2, 7, 1),
    Sketcher.Constraint("Coincident", 7, 2, 0, 1),
    Sketcher.Constraint("Horizontal", 0),
    Sketcher.Constraint("Vertical", 1),
    Sketcher.Constraint("Horizontal", 2),
    Sketcher.Constraint("Vertical", 3),
    Sketcher.Constraint("Horizontal", 4),
    Sketcher.Constraint("Vertical", 5),
    Sketcher.Constraint("Horizontal", 6),
    Sketcher.Constraint("Vertical", 7),
    Sketcher.Constraint("Horizontal", 2, 2, 5, 2),
    Sketcher.Constraint("Equal", 2, 6),
    Sketcher.Constraint("DistanceX", 0, 1, 0, 2, Q("27 mm")),
    Sketcher.Constraint("DistanceY", 1, 2, 1, 1, Q("11 mm")),
    Sketcher.Constraint("DistanceX", 2, 2, 2, 1, Q("2.2 mm")),
    Sketcher.Constraint("DistanceY", 3, 1, 3, 2, Q("7.5 mm")),
    Sketcher.Constraint("DistanceY", 0, 2, -1, 1, Q("5 mm")),
    Sketcher.Constraint("DistanceX", -1, 1, 0, 2, Q("26.9 mm")),
])
sketch12.setExpression("Constraints[18]", "Params.sketch12_width")
sketch12.setExpression("Constraints[19]", "Params.sketch12_height")
sketch12.setExpression("Constraints[20]", "Params.sketch12_width2")
sketch12.setExpression("Constraints[21]", "Params.sketch12_height2")
pad3 = doc.addObject("PartDesign::Pad", "Pad002")
body.addObject(pad3)
pad3.Profile = sketch12
pad3.setExpression("Length", "Params.pad3_length")

# Sketch on XY plane
sketch13 = doc.addObject("Sketcher::SketchObject", "Sketch012")
body.addObject(sketch13)
sketch13.AttachmentSupport = (doc.XY_Plane, [""])
sketch13.MapMode = "FlatFace"
sketch13.AttachmentOffset = App.Placement(App.Vector(0, 0, 32), App.Rotation())
sketch13.addGeometry([
    Part.LineSegment(App.Vector(3.9, 8.7, 0), App.Vector(3.9, 6.7, 0)),
    Part.LineSegment(App.Vector(3.9, 6.7, 0), App.Vector(24.9, 6.7, 0)),
    Part.LineSegment(App.Vector(24.9, 6.7, 0), App.Vector(24.9, 8.7, 0)),
    Part.LineSegment(App.Vector(24.9, 8.7, 0), App.Vector(3.9, 8.7, 0)),
], False)
sketch13.addConstraint([
    Sketcher.Constraint("Coincident", 0, 2, 1, 1),
    Sketcher.Constraint("Coincident", 1, 2, 2, 1),
    Sketcher.Constraint("Coincident", 2, 2, 3, 1),
    Sketcher.Constraint("Coincident", 3, 2, 0, 1),
    Sketcher.Constraint("Vertical", 0),
    Sketcher.Constraint("Horizontal", 1),
    Sketcher.Constraint("Vertical", 2),
    Sketcher.Constraint("Horizontal", 3),
    Sketcher.Constraint("DistanceX", 1, 1, 1, 2, Q("21 mm")),
    Sketcher.Constraint("DistanceY", 0, 2, 0, 1, Q("2 mm")),
    Sketcher.Constraint("DistanceX", -1, 1, 0, 2, Q("3.9 mm")),
    Sketcher.Constraint("DistanceY", -1, 1, 0, 2, Q("6.7 mm")),
])
sketch13.setExpression("Constraints[8]", "Params.sketch13_width")
sketch13.setExpression("Constraints[9]", "Params.sketch13_height")
pocket8 = doc.addObject("PartDesign::Pocket", "Pocket007")
body.addObject(pocket8)
pocket8.Profile = sketch13
pocket8.setExpression("Length", "Params.pocket8_length")

# Sketch on YZ plane
sketch14 = doc.addObject("Sketcher::SketchObject", "Sketch013")
body.addObject(sketch14)
sketch14.AttachmentSupport = (doc.YZ_Plane, [""])
sketch14.MapMode = "FlatFace"
sketch14.AttachmentOffset = App.Placement(App.Vector(0, 0, 24), App.Rotation())
sketch14.addGeometry([
    Part.LineSegment(App.Vector(-6, 23, 0), App.Vector(-6, 7, 0)),
    Part.ArcOfCircle(Part.Circle(App.Vector(-4.5, 7, 0), App.Vector(0, 0, 1), 1.5), math.radians(180), math.radians(360)),
    Part.LineSegment(App.Vector(-3, 7, 0), App.Vector(-3, 23, 0)),
    Part.ArcOfCircle(Part.Circle(App.Vector(-4.5, 23, 0), App.Vector(0, 0, 1), 1.5), math.radians(0), math.radians(180)),
], False)
sketch14.addConstraint([
    Sketcher.Constraint("Tangent", 0, 2, 1, 1),
    Sketcher.Constraint("Tangent", 1, 2, 2, 1),
    Sketcher.Constraint("Tangent", 2, 2, 3, 1),
    Sketcher.Constraint("Tangent", 3, 2, 0, 1),
    Sketcher.Constraint("Vertical", 0),
    Sketcher.Constraint("Vertical", 2),
    Sketcher.Constraint("Radius", 1, Q("1.5 mm")),
    Sketcher.Constraint("DistanceY", 0, 2, 0, 1, Q("16 mm")),
    Sketcher.Constraint("DistanceY", -1, 1, 1, 3, Q("7 mm")),
    Sketcher.Constraint("DistanceX", 0, 2, -1, 1, Q("6 mm")),
])
sketch14.setExpression("Constraints[6]", "Params.sketch14_radius")
sketch14.setExpression("Constraints[7]", "Params.sketch14_height")
pad4 = doc.addObject("PartDesign::Pad", "Pad003")
body.addObject(pad4)
pad4.Profile = sketch14
pad4.setExpression("Length", "Params.pad4_length")

# Sketch on XY plane
sketch15 = doc.addObject("Sketcher::SketchObject", "Sketch014")
body.addObject(sketch15)
sketch15.AttachmentSupport = (doc.XY_Plane, [""])
sketch15.MapMode = "FlatFace"
sketch15.AttachmentOffset = App.Placement(App.Vector(0, 0, 40), App.Rotation())
sketch15.addGeometry(Part.Circle(App.Vector(14.4, 0.7, 0), App.Vector(0, 0, 1), 1.5), False)
sketch15.addConstraint([
    Sketcher.Constraint("Diameter", 0, Q("3 mm")),
    Sketcher.Constraint("DistanceX", -1, 1, 0, 3, Q("14.4 mm")),
    Sketcher.Constraint("DistanceY", -1, 1, 0, 3, Q("0.7 mm")),
])
sketch15.setExpression("Constraints[0]", "Params.sketch15_diameter")
pad5 = doc.addObject("PartDesign::Pad", "Pad004")
body.addObject(pad5)
pad5.Profile = sketch15
pad5.setExpression("Length", "Params.pad5_length")

doc.recompute()
